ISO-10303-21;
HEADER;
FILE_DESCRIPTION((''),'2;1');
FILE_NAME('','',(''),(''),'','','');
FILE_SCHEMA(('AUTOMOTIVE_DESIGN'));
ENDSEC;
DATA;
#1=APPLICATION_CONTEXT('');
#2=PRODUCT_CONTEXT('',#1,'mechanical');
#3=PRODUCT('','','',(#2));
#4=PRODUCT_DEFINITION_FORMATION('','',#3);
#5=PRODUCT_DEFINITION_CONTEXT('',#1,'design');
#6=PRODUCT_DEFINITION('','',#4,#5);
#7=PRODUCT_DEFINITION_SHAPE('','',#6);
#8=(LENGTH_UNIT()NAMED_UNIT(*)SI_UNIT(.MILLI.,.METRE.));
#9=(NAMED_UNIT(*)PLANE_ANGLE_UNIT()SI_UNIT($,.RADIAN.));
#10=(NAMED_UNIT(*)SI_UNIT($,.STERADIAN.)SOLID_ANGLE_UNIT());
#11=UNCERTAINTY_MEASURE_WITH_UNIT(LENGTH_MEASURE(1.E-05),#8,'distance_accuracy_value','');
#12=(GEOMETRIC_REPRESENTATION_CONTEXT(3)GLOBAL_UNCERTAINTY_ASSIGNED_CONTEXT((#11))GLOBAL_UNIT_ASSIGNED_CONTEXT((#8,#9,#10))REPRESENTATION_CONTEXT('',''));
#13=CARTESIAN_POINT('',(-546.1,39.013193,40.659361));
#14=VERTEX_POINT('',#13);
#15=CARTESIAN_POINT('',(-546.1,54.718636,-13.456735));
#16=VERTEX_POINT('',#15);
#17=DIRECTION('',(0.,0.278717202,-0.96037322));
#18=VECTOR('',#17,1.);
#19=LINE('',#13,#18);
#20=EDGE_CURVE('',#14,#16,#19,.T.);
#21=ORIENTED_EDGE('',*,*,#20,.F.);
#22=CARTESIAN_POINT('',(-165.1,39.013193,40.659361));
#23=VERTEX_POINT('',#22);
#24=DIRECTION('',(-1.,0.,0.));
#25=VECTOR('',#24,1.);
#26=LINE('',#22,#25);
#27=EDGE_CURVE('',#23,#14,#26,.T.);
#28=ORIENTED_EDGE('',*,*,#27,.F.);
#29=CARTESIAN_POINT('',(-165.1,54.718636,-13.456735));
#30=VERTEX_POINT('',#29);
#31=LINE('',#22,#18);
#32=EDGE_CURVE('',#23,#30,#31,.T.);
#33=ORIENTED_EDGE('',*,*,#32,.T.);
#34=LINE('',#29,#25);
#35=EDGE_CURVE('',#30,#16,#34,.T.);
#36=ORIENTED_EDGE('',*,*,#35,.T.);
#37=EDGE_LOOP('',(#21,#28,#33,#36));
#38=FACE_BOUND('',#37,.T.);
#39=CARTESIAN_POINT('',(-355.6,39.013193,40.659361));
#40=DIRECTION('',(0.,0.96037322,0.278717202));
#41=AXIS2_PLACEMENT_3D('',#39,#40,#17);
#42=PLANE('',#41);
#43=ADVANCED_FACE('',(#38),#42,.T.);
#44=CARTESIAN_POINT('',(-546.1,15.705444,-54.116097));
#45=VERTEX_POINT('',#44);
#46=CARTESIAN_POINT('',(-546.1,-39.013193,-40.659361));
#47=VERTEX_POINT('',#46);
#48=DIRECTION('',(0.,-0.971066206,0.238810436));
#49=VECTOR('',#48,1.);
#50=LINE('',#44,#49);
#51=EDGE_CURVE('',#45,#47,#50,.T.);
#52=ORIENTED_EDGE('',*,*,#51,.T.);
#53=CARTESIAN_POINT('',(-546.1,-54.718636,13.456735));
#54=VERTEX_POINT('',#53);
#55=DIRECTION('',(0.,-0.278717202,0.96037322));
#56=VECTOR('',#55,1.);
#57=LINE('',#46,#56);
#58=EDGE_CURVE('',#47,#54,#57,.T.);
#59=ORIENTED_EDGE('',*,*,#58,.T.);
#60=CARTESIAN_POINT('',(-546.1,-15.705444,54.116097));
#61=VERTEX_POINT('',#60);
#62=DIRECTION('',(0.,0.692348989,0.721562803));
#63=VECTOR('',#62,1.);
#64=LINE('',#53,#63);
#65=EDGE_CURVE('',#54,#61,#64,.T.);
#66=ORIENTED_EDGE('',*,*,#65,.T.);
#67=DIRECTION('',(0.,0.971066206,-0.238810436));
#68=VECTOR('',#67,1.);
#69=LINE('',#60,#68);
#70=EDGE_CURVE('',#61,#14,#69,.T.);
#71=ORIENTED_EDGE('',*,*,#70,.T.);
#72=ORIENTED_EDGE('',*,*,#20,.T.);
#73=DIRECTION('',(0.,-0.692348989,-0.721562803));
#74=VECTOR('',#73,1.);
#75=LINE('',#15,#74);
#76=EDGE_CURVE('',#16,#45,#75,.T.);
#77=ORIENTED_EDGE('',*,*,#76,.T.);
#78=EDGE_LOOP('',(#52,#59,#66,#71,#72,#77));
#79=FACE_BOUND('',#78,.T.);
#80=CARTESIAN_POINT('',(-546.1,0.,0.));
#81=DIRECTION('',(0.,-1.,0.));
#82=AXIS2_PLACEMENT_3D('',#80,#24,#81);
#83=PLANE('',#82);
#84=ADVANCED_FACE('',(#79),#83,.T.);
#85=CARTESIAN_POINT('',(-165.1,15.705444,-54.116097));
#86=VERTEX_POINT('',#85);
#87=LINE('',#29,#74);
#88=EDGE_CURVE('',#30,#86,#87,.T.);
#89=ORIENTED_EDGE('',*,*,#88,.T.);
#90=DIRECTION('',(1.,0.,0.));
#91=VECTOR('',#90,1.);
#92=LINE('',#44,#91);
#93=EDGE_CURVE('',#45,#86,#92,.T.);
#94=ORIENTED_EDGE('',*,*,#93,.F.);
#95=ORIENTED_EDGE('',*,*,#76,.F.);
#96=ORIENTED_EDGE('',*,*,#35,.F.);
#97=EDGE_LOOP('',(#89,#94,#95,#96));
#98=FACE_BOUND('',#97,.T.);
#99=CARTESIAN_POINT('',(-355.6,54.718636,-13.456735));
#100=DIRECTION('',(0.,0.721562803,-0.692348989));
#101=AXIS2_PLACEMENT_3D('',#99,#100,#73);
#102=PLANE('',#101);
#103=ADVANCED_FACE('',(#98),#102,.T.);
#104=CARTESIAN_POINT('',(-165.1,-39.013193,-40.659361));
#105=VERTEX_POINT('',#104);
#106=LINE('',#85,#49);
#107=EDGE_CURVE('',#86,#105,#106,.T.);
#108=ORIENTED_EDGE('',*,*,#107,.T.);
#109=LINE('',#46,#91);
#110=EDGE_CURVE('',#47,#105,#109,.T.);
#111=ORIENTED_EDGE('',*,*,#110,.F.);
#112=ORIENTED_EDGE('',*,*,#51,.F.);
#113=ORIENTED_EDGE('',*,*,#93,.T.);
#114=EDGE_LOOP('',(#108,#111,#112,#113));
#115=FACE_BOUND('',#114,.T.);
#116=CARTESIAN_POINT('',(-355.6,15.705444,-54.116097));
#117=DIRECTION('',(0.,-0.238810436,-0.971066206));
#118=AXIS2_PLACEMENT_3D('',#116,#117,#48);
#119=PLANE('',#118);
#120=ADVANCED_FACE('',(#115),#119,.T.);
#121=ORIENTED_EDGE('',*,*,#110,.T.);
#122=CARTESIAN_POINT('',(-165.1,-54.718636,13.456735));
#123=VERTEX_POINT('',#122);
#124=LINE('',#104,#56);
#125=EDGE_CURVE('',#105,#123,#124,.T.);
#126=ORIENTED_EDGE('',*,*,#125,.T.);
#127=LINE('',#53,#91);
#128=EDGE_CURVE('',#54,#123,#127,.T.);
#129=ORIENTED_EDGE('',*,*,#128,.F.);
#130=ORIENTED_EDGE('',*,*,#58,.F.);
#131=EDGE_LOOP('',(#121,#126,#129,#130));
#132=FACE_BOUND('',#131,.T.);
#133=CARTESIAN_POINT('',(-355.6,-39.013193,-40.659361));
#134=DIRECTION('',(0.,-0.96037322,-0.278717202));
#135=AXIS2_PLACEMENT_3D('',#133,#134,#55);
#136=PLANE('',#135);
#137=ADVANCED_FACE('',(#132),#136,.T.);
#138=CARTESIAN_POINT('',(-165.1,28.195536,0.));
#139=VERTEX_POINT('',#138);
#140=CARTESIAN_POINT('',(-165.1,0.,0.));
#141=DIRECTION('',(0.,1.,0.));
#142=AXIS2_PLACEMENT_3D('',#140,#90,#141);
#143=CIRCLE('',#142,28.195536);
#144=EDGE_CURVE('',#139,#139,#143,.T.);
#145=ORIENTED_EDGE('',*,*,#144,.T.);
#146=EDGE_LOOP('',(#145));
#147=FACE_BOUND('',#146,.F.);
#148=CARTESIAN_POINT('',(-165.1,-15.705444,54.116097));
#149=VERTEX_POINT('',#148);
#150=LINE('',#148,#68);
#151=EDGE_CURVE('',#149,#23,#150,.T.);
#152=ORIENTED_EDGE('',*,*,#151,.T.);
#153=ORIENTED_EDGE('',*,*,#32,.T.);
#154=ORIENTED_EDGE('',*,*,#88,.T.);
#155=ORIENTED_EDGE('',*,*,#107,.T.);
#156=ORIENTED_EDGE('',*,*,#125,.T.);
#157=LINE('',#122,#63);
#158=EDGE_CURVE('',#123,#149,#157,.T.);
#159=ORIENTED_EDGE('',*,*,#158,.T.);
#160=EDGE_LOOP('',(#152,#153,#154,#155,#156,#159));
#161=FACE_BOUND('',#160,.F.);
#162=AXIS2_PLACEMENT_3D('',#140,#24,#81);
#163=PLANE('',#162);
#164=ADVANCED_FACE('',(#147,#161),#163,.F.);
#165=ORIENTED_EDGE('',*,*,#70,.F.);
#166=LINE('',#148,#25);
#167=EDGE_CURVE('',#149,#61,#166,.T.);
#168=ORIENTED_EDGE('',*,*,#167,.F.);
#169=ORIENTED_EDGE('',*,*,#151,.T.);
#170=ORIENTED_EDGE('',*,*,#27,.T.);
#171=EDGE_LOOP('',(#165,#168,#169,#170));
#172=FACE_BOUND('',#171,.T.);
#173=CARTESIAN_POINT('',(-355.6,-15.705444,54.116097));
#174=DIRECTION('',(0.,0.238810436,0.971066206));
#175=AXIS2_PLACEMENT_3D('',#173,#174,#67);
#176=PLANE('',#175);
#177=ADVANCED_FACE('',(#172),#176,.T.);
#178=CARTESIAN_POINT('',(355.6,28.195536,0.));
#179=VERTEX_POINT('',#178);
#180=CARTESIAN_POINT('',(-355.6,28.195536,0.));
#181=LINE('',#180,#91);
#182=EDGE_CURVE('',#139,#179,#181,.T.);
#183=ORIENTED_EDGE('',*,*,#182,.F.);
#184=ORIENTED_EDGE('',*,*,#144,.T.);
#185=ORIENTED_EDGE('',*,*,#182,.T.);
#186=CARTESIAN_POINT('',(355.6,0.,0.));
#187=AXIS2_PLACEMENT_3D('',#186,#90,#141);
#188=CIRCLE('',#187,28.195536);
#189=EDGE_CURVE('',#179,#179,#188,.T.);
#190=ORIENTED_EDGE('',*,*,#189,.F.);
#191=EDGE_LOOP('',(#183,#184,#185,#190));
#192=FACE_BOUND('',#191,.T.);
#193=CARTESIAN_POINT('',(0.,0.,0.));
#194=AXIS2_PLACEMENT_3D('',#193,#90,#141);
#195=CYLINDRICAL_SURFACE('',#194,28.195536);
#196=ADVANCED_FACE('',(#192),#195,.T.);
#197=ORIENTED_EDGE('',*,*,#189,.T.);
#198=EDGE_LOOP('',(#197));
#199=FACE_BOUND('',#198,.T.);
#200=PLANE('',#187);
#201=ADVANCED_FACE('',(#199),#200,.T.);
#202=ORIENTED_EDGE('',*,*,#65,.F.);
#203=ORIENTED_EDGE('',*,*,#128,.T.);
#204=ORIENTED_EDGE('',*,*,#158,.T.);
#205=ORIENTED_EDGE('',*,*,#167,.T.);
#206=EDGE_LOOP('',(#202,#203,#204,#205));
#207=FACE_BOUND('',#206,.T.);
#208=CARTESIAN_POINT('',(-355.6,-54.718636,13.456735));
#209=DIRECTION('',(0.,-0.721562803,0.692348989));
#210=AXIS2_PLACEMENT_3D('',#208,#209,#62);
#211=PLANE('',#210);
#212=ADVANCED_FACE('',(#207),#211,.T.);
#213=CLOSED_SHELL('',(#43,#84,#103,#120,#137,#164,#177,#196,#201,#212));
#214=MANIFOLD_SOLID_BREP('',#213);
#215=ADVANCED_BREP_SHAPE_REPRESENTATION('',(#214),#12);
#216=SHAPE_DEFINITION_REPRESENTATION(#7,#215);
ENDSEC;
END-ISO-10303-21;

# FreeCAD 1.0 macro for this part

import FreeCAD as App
import Part
import Sketcher
Q = App.Units.Quantity


def add_polygon(sketch, points):
    """Adds a closed chain of lines whose ends are joined by coincident constraints."""
    first, n = sketch.GeometryCount, len(points)
    for a, b in zip(points, points[1:] + points[:1]):
        sketch.addGeometry(Part.LineSegment(App.Vector(*a, 0), App.Vector(*b, 0)), False)
    for i in range(n):
        sketch.addConstraint(Sketcher.Constraint("Coincident", first + i, 2, first + (i + 1) % n, 1))

doc = App.newDocument("Part")
body = doc.addObject("PartDesign::Body", "Body")

sketch1 = body.newObject("Sketcher::SketchObject", "Sketch")
sketch1.AttachmentSupport = (doc.getObject("YZ_Plane"), [""])
sketch1.MapMode = "FlatFace"
sketch1.addGeometry(Part.Circle(App.Vector(0, 0, 0), App.Vector(0, 0, 1), 28), False)
sketch1.addConstraint(Sketcher.Constraint("Coincident", 0, 3, -1, 1))
sketch1.addConstraint(Sketcher.Constraint("Diameter", 0, Q("56.391072 mm")))
pad1 = body.newObject("PartDesign::Pad", "Pad")
pad1.Profile = sketch1
pad1.Length = Q("28 in")
pad1.Midplane = True

sketch2 = body.newObject("Sketcher::SketchObject", "Sketch001")
sketch2.AttachmentSupport = (doc.getObject("YZ_Plane"), [""])
sketch2.MapMode = "FlatFace"
sketch2.AttachmentOffset = App.Placement(App.Vector(0, 0, -14 * 25.4), App.Rotation())
add_polygon(sketch2, [(-55, 13), (-16, 54), (39, 41), (55, -13), (16, -54), (-39, -41)])
sketch2.addConstraint(Sketcher.Constraint("Symmetric", 0, 2, 3, 2, -1, 1))
sketch2.addConstraint(Sketcher.Constraint("Symmetric", 1, 2, 4, 2, -1, 1))
sketch2.addConstraint(Sketcher.Constraint("Symmetric", 2, 2, 5, 2, -1, 1))
sketch2.addConstraint(Sketcher.Constraint("Equal", 0, 1))
sketch2.addConstraint(Sketcher.Constraint("Equal", 1, 2))
sketch2.addConstraint(Sketcher.Constraint("Distance", 1, Q("56.349028 mm")))
sketch2.addConstraint(Sketcher.Constraint("DistanceY", -1, 1, 1, 2, Q("40.659361 mm")))
sketch2.addConstraint(Sketcher.Constraint("DistanceX", 0, 2, 2, 2, Q("70.42408 mm")))
sketch2.addConstraint(Sketcher.Constraint("DistanceX", 3, 2, 2, 2, Q("39.013192 mm")))
pad2 = body.newObject("PartDesign::Pad", "Pad001")
pad2.Profile = sketch2
pad2.Length = Q("15 in")
pad2.Midplane = True

doc.recompute()
